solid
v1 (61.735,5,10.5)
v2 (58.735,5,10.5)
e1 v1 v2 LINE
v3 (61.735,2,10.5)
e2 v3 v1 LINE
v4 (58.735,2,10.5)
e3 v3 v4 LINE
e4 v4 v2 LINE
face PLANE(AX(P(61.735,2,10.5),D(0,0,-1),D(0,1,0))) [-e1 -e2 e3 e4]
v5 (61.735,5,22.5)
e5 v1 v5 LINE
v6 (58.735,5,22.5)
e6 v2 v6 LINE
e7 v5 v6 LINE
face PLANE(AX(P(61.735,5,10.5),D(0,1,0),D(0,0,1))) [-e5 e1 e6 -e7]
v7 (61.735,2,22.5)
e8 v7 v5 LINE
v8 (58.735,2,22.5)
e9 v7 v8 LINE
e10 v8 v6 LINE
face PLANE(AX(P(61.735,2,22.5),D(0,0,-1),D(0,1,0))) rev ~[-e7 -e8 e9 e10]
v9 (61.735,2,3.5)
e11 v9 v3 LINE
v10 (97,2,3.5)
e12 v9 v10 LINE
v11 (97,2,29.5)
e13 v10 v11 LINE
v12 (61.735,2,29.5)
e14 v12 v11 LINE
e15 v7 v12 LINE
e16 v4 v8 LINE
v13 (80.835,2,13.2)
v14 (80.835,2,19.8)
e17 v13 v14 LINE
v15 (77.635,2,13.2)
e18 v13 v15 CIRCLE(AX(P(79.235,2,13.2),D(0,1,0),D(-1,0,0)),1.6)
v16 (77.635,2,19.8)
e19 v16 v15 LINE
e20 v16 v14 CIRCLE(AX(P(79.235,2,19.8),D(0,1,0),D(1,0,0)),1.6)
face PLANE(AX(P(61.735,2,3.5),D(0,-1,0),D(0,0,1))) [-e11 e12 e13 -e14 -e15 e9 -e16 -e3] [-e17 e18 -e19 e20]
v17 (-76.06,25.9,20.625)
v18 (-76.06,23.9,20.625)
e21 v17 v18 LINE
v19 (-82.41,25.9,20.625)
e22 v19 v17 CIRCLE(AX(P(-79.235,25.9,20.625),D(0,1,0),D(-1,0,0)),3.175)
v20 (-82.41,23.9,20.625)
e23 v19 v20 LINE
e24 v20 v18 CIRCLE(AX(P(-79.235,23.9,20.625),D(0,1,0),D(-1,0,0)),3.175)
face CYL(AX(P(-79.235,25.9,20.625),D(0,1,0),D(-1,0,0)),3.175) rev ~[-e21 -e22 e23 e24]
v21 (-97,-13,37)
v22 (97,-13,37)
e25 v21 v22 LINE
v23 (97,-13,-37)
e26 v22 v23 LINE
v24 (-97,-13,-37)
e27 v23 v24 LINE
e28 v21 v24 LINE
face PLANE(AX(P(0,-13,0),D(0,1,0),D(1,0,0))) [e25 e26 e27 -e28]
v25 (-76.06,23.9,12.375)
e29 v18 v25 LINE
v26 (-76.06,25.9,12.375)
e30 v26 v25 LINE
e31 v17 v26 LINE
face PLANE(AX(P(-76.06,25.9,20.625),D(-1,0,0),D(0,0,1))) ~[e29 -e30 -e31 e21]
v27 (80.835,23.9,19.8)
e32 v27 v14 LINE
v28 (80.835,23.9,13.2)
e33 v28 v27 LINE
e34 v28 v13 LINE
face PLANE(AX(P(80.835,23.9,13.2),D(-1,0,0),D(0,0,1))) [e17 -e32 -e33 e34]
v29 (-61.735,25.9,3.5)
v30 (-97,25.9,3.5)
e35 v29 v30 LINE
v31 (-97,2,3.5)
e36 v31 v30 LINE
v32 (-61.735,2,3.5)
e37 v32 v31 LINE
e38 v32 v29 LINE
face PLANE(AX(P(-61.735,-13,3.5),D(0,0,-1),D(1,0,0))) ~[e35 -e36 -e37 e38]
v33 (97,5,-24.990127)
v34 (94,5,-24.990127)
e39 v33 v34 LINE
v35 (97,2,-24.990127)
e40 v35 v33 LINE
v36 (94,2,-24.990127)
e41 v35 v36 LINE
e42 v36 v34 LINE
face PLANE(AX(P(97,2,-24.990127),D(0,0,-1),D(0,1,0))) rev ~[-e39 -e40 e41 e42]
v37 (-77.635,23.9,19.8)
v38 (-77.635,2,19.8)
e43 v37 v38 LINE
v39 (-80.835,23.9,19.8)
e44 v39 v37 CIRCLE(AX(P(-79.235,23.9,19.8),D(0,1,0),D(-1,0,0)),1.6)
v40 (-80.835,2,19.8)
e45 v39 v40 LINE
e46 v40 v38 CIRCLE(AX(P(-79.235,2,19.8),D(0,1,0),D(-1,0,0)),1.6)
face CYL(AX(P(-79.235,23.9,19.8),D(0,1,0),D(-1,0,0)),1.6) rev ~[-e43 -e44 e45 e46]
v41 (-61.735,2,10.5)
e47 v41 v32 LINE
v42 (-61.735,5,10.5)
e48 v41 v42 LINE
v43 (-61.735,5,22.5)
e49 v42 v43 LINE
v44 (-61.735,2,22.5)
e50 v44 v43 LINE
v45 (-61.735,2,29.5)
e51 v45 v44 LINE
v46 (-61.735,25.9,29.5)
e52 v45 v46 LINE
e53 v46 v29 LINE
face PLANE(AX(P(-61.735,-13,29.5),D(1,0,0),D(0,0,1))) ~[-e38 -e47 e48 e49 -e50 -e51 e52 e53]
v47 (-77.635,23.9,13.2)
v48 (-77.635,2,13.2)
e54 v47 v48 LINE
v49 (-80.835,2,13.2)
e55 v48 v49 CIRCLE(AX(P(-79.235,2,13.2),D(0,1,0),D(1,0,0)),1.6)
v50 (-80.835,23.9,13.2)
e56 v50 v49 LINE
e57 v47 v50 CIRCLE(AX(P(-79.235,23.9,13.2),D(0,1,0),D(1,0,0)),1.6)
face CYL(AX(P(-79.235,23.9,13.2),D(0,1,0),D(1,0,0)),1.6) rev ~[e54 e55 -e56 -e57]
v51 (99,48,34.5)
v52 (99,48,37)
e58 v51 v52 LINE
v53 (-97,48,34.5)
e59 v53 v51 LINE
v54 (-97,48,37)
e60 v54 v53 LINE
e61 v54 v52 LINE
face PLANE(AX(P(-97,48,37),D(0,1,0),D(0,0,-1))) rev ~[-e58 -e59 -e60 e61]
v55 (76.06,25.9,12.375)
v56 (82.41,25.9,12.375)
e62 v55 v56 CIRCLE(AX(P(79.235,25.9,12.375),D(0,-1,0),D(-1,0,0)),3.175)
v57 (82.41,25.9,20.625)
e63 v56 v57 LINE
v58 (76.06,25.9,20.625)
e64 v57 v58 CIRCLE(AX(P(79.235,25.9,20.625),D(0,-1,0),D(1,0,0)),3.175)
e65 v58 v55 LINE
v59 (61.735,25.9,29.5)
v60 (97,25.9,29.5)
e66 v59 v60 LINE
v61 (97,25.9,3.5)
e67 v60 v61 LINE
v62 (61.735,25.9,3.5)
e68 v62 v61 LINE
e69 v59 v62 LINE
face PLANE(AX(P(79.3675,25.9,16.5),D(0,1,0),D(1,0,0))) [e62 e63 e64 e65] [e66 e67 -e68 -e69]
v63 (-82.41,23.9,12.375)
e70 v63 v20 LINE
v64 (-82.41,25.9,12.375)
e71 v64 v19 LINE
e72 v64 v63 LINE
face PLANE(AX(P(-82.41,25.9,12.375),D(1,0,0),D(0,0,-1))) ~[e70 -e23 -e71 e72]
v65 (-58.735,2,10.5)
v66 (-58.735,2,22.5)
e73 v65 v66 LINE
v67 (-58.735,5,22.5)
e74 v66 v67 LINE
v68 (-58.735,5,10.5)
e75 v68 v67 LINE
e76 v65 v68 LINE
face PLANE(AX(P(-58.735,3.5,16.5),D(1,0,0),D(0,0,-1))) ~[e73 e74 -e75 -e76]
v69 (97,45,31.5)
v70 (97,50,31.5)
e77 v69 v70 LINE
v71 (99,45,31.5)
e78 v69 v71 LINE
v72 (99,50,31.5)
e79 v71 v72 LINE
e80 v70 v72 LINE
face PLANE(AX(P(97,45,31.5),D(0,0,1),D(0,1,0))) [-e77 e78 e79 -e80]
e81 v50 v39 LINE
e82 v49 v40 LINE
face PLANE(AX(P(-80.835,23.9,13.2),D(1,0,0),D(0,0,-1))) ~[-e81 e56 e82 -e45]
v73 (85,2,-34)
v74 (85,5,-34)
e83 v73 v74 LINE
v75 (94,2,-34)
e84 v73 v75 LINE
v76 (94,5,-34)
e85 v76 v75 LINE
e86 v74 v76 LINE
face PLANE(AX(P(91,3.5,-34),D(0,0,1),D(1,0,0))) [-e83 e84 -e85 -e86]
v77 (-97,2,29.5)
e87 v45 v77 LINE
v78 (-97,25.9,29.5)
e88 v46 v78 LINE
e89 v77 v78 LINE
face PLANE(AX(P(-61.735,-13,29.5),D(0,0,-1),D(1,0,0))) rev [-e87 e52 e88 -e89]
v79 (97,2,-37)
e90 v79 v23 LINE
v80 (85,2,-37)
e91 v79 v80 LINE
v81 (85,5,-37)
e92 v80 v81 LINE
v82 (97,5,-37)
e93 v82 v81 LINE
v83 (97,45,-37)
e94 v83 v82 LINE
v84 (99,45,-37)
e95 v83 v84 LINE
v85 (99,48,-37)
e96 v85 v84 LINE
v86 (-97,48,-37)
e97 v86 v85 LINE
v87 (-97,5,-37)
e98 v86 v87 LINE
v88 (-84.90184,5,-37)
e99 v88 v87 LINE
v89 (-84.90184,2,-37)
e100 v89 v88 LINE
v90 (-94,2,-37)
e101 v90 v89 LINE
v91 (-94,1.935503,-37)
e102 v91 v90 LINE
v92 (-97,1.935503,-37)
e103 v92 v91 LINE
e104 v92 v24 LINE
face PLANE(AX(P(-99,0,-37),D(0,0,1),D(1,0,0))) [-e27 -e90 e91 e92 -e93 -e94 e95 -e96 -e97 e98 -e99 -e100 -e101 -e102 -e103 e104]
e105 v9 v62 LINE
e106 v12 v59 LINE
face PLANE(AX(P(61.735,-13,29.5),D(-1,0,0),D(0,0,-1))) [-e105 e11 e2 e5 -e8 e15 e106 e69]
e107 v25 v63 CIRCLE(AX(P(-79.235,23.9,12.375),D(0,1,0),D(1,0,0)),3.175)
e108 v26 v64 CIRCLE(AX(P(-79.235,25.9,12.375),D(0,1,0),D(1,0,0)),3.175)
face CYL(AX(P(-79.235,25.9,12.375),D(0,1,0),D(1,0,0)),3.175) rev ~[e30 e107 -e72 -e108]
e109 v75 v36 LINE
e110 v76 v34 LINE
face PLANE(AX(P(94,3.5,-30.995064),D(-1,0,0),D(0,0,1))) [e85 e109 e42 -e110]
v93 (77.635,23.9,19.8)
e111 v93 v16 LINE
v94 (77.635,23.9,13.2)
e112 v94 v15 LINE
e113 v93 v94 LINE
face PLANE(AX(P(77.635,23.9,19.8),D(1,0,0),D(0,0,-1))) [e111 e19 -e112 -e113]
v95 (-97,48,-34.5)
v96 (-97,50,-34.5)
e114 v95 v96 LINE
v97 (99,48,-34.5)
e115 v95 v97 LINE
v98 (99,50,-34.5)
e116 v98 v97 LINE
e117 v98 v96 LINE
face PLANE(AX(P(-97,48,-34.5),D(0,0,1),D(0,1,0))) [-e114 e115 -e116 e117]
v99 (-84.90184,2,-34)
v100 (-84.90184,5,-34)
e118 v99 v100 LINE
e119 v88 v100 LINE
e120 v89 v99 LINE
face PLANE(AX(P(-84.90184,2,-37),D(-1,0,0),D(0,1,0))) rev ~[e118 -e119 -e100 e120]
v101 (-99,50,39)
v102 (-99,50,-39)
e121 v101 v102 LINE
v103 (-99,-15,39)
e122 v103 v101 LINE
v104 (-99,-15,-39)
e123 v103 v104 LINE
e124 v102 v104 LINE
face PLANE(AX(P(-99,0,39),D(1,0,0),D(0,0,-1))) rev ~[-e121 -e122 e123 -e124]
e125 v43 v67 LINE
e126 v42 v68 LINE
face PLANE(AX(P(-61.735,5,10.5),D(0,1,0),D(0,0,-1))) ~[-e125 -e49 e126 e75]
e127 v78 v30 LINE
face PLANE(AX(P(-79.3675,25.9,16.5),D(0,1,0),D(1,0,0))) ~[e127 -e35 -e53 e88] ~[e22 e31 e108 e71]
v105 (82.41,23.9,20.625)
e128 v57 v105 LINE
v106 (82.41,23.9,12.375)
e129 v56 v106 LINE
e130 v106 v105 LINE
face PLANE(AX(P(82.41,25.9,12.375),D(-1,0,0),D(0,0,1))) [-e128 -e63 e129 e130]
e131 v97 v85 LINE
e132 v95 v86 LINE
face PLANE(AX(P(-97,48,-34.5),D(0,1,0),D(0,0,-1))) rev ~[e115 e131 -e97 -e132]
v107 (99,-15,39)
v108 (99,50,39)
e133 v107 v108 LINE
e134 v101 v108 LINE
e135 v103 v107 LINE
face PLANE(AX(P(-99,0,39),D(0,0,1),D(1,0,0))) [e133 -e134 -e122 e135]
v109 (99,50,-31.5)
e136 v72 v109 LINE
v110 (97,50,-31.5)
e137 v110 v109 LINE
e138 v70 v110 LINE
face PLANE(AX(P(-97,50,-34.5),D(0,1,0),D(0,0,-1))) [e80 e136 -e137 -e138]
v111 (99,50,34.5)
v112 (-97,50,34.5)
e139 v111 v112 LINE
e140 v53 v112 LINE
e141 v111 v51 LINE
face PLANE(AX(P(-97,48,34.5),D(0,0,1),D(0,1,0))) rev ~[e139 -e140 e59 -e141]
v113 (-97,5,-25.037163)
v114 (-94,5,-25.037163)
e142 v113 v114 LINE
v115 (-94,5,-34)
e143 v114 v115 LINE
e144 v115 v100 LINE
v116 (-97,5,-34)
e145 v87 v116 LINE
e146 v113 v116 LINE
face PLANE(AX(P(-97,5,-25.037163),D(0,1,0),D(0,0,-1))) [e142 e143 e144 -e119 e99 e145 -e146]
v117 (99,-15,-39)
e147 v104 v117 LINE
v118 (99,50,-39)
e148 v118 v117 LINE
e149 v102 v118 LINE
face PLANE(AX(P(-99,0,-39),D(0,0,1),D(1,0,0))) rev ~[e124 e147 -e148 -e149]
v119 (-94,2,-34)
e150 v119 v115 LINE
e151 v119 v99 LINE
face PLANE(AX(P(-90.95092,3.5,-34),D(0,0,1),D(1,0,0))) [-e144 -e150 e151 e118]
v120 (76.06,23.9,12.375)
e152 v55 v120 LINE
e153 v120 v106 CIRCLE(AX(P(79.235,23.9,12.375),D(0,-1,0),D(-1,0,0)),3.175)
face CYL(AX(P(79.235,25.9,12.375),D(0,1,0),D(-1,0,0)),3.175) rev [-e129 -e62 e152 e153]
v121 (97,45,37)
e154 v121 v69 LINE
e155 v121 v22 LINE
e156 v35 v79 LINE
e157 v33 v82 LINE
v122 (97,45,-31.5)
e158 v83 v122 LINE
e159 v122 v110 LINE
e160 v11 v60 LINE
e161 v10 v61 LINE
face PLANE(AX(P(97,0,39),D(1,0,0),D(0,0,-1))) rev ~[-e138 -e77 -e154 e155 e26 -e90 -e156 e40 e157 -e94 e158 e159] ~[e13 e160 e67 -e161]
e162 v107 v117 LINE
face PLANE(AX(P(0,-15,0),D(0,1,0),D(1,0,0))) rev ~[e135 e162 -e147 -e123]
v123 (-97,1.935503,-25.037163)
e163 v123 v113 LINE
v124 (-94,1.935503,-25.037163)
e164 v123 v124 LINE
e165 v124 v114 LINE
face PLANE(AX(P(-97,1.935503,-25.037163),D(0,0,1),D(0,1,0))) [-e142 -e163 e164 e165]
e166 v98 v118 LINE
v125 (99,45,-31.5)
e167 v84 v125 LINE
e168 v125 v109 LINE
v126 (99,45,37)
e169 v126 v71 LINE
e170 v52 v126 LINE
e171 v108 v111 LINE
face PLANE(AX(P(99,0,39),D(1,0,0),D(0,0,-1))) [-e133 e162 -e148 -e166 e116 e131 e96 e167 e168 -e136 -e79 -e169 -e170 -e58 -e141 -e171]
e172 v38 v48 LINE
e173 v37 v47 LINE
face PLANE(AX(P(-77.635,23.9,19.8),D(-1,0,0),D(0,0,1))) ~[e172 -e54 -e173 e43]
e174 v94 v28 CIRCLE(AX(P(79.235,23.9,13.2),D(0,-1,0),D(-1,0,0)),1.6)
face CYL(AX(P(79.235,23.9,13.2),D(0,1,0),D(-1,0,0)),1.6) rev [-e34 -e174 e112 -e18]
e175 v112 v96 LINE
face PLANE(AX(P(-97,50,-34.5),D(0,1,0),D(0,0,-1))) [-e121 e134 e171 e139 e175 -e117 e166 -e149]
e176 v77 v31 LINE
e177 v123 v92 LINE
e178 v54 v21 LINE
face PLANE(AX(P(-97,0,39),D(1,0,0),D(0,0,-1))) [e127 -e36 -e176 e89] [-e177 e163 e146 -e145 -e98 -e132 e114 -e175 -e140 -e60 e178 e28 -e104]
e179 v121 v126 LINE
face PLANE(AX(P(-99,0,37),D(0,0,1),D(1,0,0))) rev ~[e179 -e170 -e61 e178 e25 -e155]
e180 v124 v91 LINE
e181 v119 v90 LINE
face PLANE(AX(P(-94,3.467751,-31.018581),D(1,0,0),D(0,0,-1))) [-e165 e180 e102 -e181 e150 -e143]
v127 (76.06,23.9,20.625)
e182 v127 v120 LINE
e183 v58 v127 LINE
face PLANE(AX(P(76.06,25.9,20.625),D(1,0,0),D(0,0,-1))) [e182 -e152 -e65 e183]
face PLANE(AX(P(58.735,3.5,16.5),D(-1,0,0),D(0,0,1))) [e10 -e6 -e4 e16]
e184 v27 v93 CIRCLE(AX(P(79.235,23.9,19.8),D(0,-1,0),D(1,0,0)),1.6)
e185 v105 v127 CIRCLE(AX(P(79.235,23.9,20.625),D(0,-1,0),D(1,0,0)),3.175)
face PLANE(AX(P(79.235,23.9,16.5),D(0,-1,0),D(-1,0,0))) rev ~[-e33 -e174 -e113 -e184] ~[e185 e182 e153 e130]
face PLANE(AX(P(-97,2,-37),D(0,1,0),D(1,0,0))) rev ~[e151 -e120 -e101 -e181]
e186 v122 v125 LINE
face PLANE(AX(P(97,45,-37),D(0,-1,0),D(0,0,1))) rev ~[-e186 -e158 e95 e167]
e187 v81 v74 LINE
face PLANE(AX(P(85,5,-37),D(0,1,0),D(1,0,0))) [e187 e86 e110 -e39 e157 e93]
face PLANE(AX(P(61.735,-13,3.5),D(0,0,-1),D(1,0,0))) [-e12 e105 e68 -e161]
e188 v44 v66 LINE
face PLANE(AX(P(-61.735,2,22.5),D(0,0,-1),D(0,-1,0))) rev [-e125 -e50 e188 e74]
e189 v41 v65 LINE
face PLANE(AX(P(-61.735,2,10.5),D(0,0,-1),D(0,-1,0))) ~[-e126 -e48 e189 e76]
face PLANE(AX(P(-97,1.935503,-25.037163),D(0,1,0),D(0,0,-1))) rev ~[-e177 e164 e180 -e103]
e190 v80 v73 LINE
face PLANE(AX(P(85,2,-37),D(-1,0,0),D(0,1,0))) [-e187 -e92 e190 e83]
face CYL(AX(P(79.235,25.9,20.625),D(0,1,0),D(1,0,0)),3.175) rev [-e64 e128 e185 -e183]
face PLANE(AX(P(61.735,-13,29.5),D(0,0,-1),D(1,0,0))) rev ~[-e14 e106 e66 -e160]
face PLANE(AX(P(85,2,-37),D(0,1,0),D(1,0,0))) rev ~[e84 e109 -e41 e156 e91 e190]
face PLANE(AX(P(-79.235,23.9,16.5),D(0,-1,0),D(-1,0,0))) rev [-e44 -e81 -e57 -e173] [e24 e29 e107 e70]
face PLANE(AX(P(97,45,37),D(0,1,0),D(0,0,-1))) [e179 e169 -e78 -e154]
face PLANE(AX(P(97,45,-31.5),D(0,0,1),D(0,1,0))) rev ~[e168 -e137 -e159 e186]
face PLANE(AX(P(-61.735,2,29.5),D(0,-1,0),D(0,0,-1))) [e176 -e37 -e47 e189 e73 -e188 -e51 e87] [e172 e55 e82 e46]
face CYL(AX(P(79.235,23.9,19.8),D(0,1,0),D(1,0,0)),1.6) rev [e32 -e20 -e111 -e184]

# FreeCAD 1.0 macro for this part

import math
import FreeCAD as App
import Part
import Sketcher
Q = App.Units.Quantity


def faces_at(feature, points):
    """Names of the faces that lie closest to the given points."""
    faces = feature.Shape.Faces
    near = lambda p: min(range(len(faces)), key=lambda i: faces[i].distToShape(Part.Vertex(*p))[0])
    return sorted({f"Face{near(p) + 1}" for p in points})

doc = App.newDocument("Part")
body = doc.addObject("PartDesign::Body", "Body")

# Sketch on XZ plane
sketch1 = body.newObject("Sketcher::SketchObject", "Sketch")
sketch1.AttachmentSupport = (doc.getObject("XZ_Plane"), [""])
sketch1.MapMode = "FlatFace"
sketch1.addGeometry([
    Part.LineSegment(App.Vector(-99, -39, 0), App.Vector(-99, 39, 0)),
    Part.LineSegment(App.Vector(-99, 39, 0), App.Vector(99, 39, 0)),
    Part.LineSegment(App.Vector(99, 39, 0), App.Vector(99, -39, 0)),
    Part.LineSegment(App.Vector(99, -39, 0), App.Vector(-99, -39, 0)),
], False)
sketch1.addConstraint([
    Sketcher.Constraint("Coincident", 0, 2, 1, 1),
    Sketcher.Constraint("Coincident", 1, 2, 2, 1),
    Sketcher.Constraint("Coincident", 2, 2, 3, 1),
    Sketcher.Constraint("Coincident", 3, 2, 0, 1),
    Sketcher.Constraint("Vertical", 0),
    Sketcher.Constraint("Horizontal", 1),
    Sketcher.Constraint("Vertical", 2),
    Sketcher.Constraint("Horizontal", 3),
    Sketcher.Constraint("Symmetric", 0, 2, 2, 2, -1, 1),
    Sketcher.Constraint("DistanceX", 1, 1, 1, 2, Q("198 mm")),
    Sketcher.Constraint("DistanceY", 0, 1, 0, 2, Q("78 mm")),
])
pad1 = body.newObject("PartDesign::Pad", "Pad")
pad1.Profile = sketch1
pad1.Type = "TwoLengths"
pad1.Length = 50
pad1.Length2 = 15
pad1.Reversed = True
doc.recompute()

thickness = body.newObject("PartDesign::Thickness", "Thickness")
thickness.Base = (pad1, faces_at(pad1, [(0, 50, 0)]))
thickness.Value = 2
thickness.Reversed = True
thickness.Join = "Intersection"

# Sketch on YZ plane
sketch2 = body.newObject("Sketcher::SketchObject", "Sketch001")
sketch2.AttachmentSupport = (doc.getObject("YZ_Plane"), [""])
sketch2.MapMode = "FlatFace"
sketch2.AttachmentOffset = App.Placement(App.Vector(0, 0, -97), App.Rotation())
sketch2.addGeometry([
    Part.LineSegment(App.Vector(50, 37, 0), App.Vector(48, 37, 0)),
    Part.LineSegment(App.Vector(48, 37, 0), App.Vector(48, 34.5, 0)),
    Part.LineSegment(App.Vector(48, 34.5, 0), App.Vector(50, 34.5, 0)),
    Part.LineSegment(App.Vector(50, 34.5, 0), App.Vector(50, 37, 0)),
], False)
sketch2.addConstraint([
    Sketcher.Constraint("Coincident", 0, 2, 1, 1),
    Sketcher.Constraint("Coincident", 1, 2, 2, 1),
    Sketcher.Constraint("Coincident", 2, 2, 3, 1),
    Sketcher.Constraint("Coincident", 3, 2, 0, 1),
    Sketcher.Constraint("Horizontal", 0),
    Sketcher.Constraint("Vertical", 1),
    Sketcher.Constraint("Horizontal", 2),
    Sketcher.Constraint("Vertical", 3),
    Sketcher.Constraint("DistanceX", 0, 2, 0, 1, Q("2 mm")),
    Sketcher.Constraint("DistanceY", 1, 2, 1, 1, Q("2.5 mm")),
    Sketcher.Constraint("DistanceX", -1, 1, 0, 2, Q("48 mm")),
    Sketcher.Constraint("DistanceY", -1, 1, 0, 2, Q("37 mm")),
])
pad2 = body.newObject("PartDesign::Pad", "Pad001")
pad2.Profile = sketch2
pad2.Type = "UpToFirst"

# Sketch on YZ plane
sketch3 = body.newObject("Sketcher::SketchObject", "Sketch002")
sketch3.AttachmentSupport = (doc.getObject("YZ_Plane"), [""])
sketch3.MapMode = "FlatFace"
sketch3.AttachmentOffset = App.Placement(App.Vector(0, 0, -97), App.Rotation())
sketch3.addGeometry([
    Part.LineSegment(App.Vector(50, -34.5, 0), App.Vector(48, -34.5, 0)),
    Part.LineSegment(App.Vector(48, -34.5, 0), App.Vector(48, -37, 0)),
    Part.LineSegment(App.Vector(48, -37, 0), App.Vector(50, -37, 0)),
    Part.LineSegment(App.Vector(50, -37, 0), App.Vector(50, -34.5, 0)),
], False)
sketch3.addConstraint([
    Sketcher.Constraint("Coincident", 0, 2, 1, 1),
    Sketcher.Constraint("Coincident", 1, 2, 2, 1),
    Sketcher.Constraint("Coincident", 2, 2, 3, 1),
    Sketcher.Constraint("Coincident", 3, 2, 0, 1),
    Sketcher.Constraint("Horizontal", 0),
    Sketcher.Constraint("Vertical", 1),
    Sketcher.Constraint("Horizontal", 2),
    Sketcher.Constraint("Vertical", 3),
    Sketcher.Constraint("DistanceX", 0, 2, 0, 1, Q("2 mm")),
    Sketcher.Constraint("DistanceY", 1, 2, 1, 1, Q("2.5 mm")),
    Sketcher.Constraint("DistanceX", -1, 1, 0, 2, Q("48 mm")),
    Sketcher.Constraint("DistanceY", 1, 2, -1, 1, Q("37 mm")),
])
pad3 = body.newObject("PartDesign::Pad", "Pad002")
pad3.Profile = sketch3
pad3.Type = "UpToFirst"

# Sketch on YZ plane
sketch4 = body.newObject("Sketcher::SketchObject", "Sketch003")
sketch4.AttachmentSupport = (doc.getObject("YZ_Plane"), [""])
sketch4.MapMode = "FlatFace"
sketch4.AttachmentOffset = App.Placement(App.Vector(0, 0, 97), App.Rotation())
sketch4.addGeometry([
    Part.LineSegment(App.Vector(48, -37, 0), App.Vector(45, -37, 0)),  # 0
    Part.LineSegment(App.Vector(45, -37, 0), App.Vector(45, -31.5, 0)),  # 1
    Part.LineSegment(App.Vector(45, -31.5, 0), App.Vector(50, -31.5, 0)),  # 2
    Part.LineSegment(App.Vector(50, -31.5, 0), App.Vector(50, -34.5, 0)),  # 3
    Part.LineSegment(App.Vector(50, -34.5, 0), App.Vector(48, -34.5, 0)),  # 4
    Part.LineSegment(App.Vector(48, -34.5, 0), App.Vector(48, -37, 0)),  # 5
], False)
sketch4.addConstraint([
    Sketcher.Constraint("Coincident", 0, 2, 1, 1),
    Sketcher.Constraint("Coincident", 1, 2, 2, 1),
    Sketcher.Constraint("Coincident", 2, 2, 3, 1),
    Sketcher.Constraint("Coincident", 3, 2, 4, 1),
    Sketcher.Constraint("Coincident", 4, 2, 5, 1),
    Sketcher.Constraint("Coincident", 5, 2, 0, 1),
    Sketcher.Constraint("Horizontal", 0),
    Sketcher.Constraint("Vertical", 1),
    Sketcher.Constraint("Horizontal", 2),
    Sketcher.Constraint("Vertical", 3),
    Sketcher.Constraint("Horizontal", 4),
    Sketcher.Constraint("Vertical", 5),
    Sketcher.Constraint("Equal", 0, 3),
    Sketcher.Constraint("DistanceX", 0, 2, 0, 1, Q("3 mm")),
    Sketcher.Constraint("DistanceX", 2, 1, 2, 2, Q("5 mm")),
    Sketcher.Constraint("DistanceY", 1, 1, 1, 2, Q("5.5 mm")),
    Sketcher.Constraint("DistanceX", -1, 1, 0, 2, Q("45 mm")),
    Sketcher.Constraint("DistanceY", 0, 2, -1, 1, Q("37 mm")),
])
pocket1 = body.newObject("PartDesign::Pocket", "Pocket")
pocket1.Profile = sketch4
pocket1.Type = "UpToFirst"
pocket1.Reversed = True

# Sketch on YZ plane
sketch5 = body.newObject("Sketcher::SketchObject", "Sketch004")
sketch5.AttachmentSupport = (doc.getObject("YZ_Plane"), [""])
sketch5.MapMode = "FlatFace"
sketch5.AttachmentOffset = App.Placement(App.Vector(0, 0, 97), App.Rotation())
sketch5.addGeometry([
    Part.LineSegment(App.Vector(48, 37, 0), App.Vector(48, 34.5, 0)),  # 0
    Part.LineSegment(App.Vector(48, 34.5, 0), App.Vector(50, 34.5, 0)),  # 1
    Part.LineSegment(App.Vector(50, 34.5, 0), App.Vector(50, 31.5, 0)),  # 2
    Part.LineSegment(App.Vector(50, 31.5, 0), App.Vector(45, 31.5, 0)),  # 3
    Part.LineSegment(App.Vector(45, 31.5, 0), App.Vector(45, 37, 0)),  # 4
    Part.LineSegment(App.Vector(45, 37, 0), App.Vector(48, 37, 0)),  # 5
], False)
sketch5.addConstraint([
    Sketcher.Constraint("Coincident", 0, 2, 1, 1),
    Sketcher.Constraint("Coincident", 1, 2, 2, 1),
    Sketcher.Constraint("Coincident", 2, 2, 3, 1),
    Sketcher.Constraint("Coincident", 3, 2, 4, 1),
    Sketcher.Constraint("Coincident", 4, 2, 5, 1),
    Sketcher.Constraint("Coincident", 5, 2, 0, 1),
    Sketcher.Constraint("Vertical", 0),
    Sketcher.Constraint("Horizontal", 1),
    Sketcher.Constraint("Vertical", 2),
    Sketcher.Constraint("Horizontal", 3),
    Sketcher.Constraint("Vertical", 4),
    Sketcher.Constraint("Horizontal", 5),
    Sketcher.Constraint("Equal", 5, 2),
    Sketcher.Constraint("DistanceX", 1, 1, 1, 2, Q("2 mm")),
    Sketcher.Constraint("DistanceX", 3, 2, 3, 1, Q("5 mm")),
    Sketcher.Constraint("DistanceY", 0, 2, 0, 1, Q("2.5 mm")),
    Sketcher.Constraint("DistanceX", -1, 1, 0, 2, Q("48 mm")),
    Sketcher.Constraint("DistanceY", -1, 1, 4, 2, Q("37 mm")),
])
pocket2 = body.newObject("PartDesign::Pocket", "Pocket001")
pocket2.Profile = sketch5
pocket2.Type = "UpToFirst"
pocket2.Reversed = True

# Sketch on XZ plane
sketch6 = body.newObject("Sketcher::SketchObject", "Sketch005")
sketch6.AttachmentSupport = (doc.getObject("XZ_Plane"), [""])
sketch6.MapMode = "FlatFace"
sketch6.AttachmentOffset = App.Placement(App.Vector(0, 0, 13), App.Rotation())
sketch6.addGeometry([
    Part.LineSegment(App.Vector(61.735, 3.5, 0), App.Vector(61.735, 29.5, 0)),
    Part.LineSegment(App.Vector(61.735, 29.5, 0), App.Vector(97, 29.5, 0)),
    Part.LineSegment(App.Vector(97, 29.5, 0), App.Vector(97, 3.5, 0)),
    Part.LineSegment(App.Vector(97, 3.5, 0), App.Vector(61.735, 3.5, 0)),
], False)
sketch6.addConstraint([
    Sketcher.Constraint("Coincident", 0, 2, 1, 1),
    Sketcher.Constraint("Coincident", 1, 2, 2, 1),
    Sketcher.Constraint("Coincident", 2, 2, 3, 1),
    Sketcher.Constraint("Coincident", 3, 2, 0, 1),
    Sketcher.Constraint("Vertical", 0),
    Sketcher.Constraint("Horizontal", 1),
    Sketcher.Constraint("Vertical", 2),
    Sketcher.Constraint("Horizontal", 3),
    Sketcher.Constraint("DistanceY", 0, 1, 0, 2, Q("26 mm")),
    Sketcher.Constraint("DistanceX", -1, 1, 1, 2, Q("97 mm")),
    Sketcher.Constraint("DistanceY", -1, 1, 0, 2, Q("29.5 mm")),
    Sketcher.Constraint("DistanceX", 1, 1, 1, 2, Q("35.265 mm")),
])
pad4 = body.newObject("PartDesign::Pad", "Pad003")
pad4.Profile = sketch6
pad4.Length = 38.9
pad4.Reversed = True
doc.recompute()

mirrored = body.newObject("PartDesign::Mirrored", "Mirrored")
mirrored.Originals = [pad4]
mirrored.MirrorPlane = (doc.getObject("YZ_Plane"), [""])
body.Tip = mirrored

# Sketch on XZ plane
sketch7 = body.newObject("Sketcher::SketchObject", "Sketch006")
sketch7.AttachmentSupport = (doc.getObject("XZ_Plane"), [""])
sketch7.MapMode = "FlatFace"
sketch7.AttachmentOffset = App.Placement(App.Vector(0, 0, -25.9), App.Rotation())
sketch7.addGeometry([
    Part.LineSegment(App.Vector(82.41, 20.625, 0), App.Vector(82.41, 12.375, 0)),
    Part.ArcOfCircle(Part.Circle(App.Vector(79.235, 12.375, 0), App.Vector(0, 0, 1), 3.175), math.radians(180), math.radians(360)),
    Part.LineSegment(App.Vector(76.06, 12.375, 0), App.Vector(76.06, 20.625, 0)),
    Part.ArcOfCircle(Part.Circle(App.Vector(79.235, 20.625, 0), App.Vector(0, 0, 1), 3.175), math.radians(0), math.radians(180)),
], False)
sketch7.addConstraint([
    Sketcher.Constraint("Tangent", 0, 2, 1, 2),
    Sketcher.Constraint("Tangent", 1, 1, 2, 1),
    Sketcher.Constraint("Tangent", 2, 2, 3, 2),
    Sketcher.Constraint("Tangent", 3, 1, 0, 1),
    Sketcher.Constraint("Vertical", 0),
    Sketcher.Constraint("Vertical", 2),
    Sketcher.Constraint("Radius", 1, Q("3.175 mm")),
    Sketcher.Constraint("DistanceY", 0, 2, 0, 1, Q("8.25 mm")),
    Sketcher.Constraint("DistanceX", -1, 1, 0, 2, Q("82.41 mm")),
    Sketcher.Constraint("DistanceY", -1, 1, 1, 3, Q("12.375 mm")),
])
pocket3 = body.newObject("PartDesign::Pocket", "Pocket002")
pocket3.Profile = sketch7
pocket3.Length = 2
pocket3.Reversed = True
doc.recompute()

mirrored2 = body.newObject("PartDesign::Mirrored", "Mirrored001")
mirrored2.Originals = [pocket3]
mirrored2.MirrorPlane = (doc.getObject("YZ_Plane"), [""])
body.Tip = mirrored2

# Sketch on XZ plane
sketch8 = body.newObject("Sketcher::SketchObject", "Sketch007")
sketch8.AttachmentSupport = (doc.getObject("XZ_Plane"), [""])
sketch8.MapMode = "FlatFace"
sketch8.AttachmentOffset = App.Placement(App.Vector(0, 0, -23.9), App.Rotation())
sketch8.addGeometry([
    Part.LineSegment(App.Vector(80.835, 19.8, 0), App.Vector(80.835, 13.2, 0)),
    Part.ArcOfCircle(Part.Circle(App.Vector(79.235, 13.2, 0), App.Vector(0, 0, 1), 1.6), math.radians(180), math.radians(360)),
    Part.LineSegment(App.Vector(77.635, 13.2, 0), App.Vector(77.635, 19.8, 0)),
    Part.ArcOfCircle(Part.Circle(App.Vector(79.235, 19.8, 0), App.Vector(0, 0, 1), 1.6), math.radians(0), math.radians(180)),
], False)
sketch8.addConstraint([
    Sketcher.Constraint("Tangent", 0, 2, 1, 2),
    Sketcher.Constraint("Tangent", 1, 1, 2, 1),
    Sketcher.Constraint("Tangent", 2, 2, 3, 2),
    Sketcher.Constraint("Tangent", 3, 1, 0, 1),
    Sketcher.Constraint("Vertical", 0),
    Sketcher.Constraint("Vertical", 2),
    Sketcher.Constraint("Radius", 1, Q("1.6 mm")),
    Sketcher.Constraint("DistanceY", 0, 2, 0, 1, Q("6.6 mm")),
    Sketcher.Constraint("DistanceY", -1, 1, 1, 3, Q("13.2 mm")),
    Sketcher.Constraint("DistanceX", -1, 1, 1, 3, Q("79.235 mm")),
])
pocket4 = body.newObject("PartDesign::Pocket", "Pocket003")
pocket4.Profile = sketch8
pocket4.Length = 30
pocket4.Reversed = True
doc.recompute()

mirrored3 = body.newObject("PartDesign::Mirrored", "Mirrored002")
mirrored3.Originals = [pocket4]
mirrored3.MirrorPlane = (doc.getObject("YZ_Plane"), [""])
body.Tip = mirrored3

# Sketch on YZ plane
sketch9 = body.newObject("Sketcher::SketchObject", "Sketch008")
sketch9.AttachmentSupport = (doc.getObject("YZ_Plane"), [""])
sketch9.MapMode = "FlatFace"
sketch9.AttachmentOffset = App.Placement(App.Vector(0, 0, 61.735), App.Rotation())
sketch9.addGeometry([
    Part.LineSegment(App.Vector(2, 3.5, 0), App.Vector(-13, 3.5, 0)),
    Part.LineSegment(App.Vector(-13, 3.5, 0), App.Vector(-13, 29.5, 0)),
    Part.LineSegment(App.Vector(-13, 29.5, 0), App.Vector(2, 29.5, 0)),
    Part.LineSegment(App.Vector(2, 29.5, 0), App.Vector(2, 3.5, 0)),
], False)
sketch9.addConstraint([
    Sketcher.Constraint("Coincident", 0, 2, 1, 1),
    Sketcher.Constraint("Coincident", 1, 2, 2, 1),
    Sketcher.Constraint("Coincident", 2, 2, 3, 1),
    Sketcher.Constraint("Coincident", 3, 2, 0, 1),
    Sketcher.Constraint("Horizontal", 0),
    Sketcher.Constraint("Vertical", 1),
    Sketcher.Constraint("Horizontal", 2),
    Sketcher.Constraint("Vertical", 3),
    Sketcher.Constraint("DistanceX", 0, 2, 0, 1, Q("15 mm")),
    Sketcher.Constraint("DistanceY", 1, 1, 1, 2, Q("26 mm")),
    Sketcher.Constraint("DistanceX", 0, 2, -1, 1, Q("13 mm")),
    Sketcher.Constraint("DistanceY", -1, 1, 0, 2, Q("3.5 mm")),
])
pocket5 = body.newObject("PartDesign::Pocket", "Pocket004")
pocket5.Profile = sketch9
pocket5.Length = 35.265
pocket5.Reversed = True

# Sketch on YZ plane
sketch10 = body.newObject("Sketcher::SketchObject", "Sketch009")
sketch10.AttachmentSupport = (doc.getObject("YZ_Plane"), [""])
sketch10.MapMode = "FlatFace"
sketch10.AttachmentOffset = App.Placement(App.Vector(0, 0, 61.735), App.Rotation())
sketch10.addGeometry([
    Part.LineSegment(App.Vector(5, 10.5, 0), App.Vector(2, 10.5, 0)),
    Part.LineSegment(App.Vector(2, 10.5, 0), App.Vector(2, 22.5, 0)),
    Part.LineSegment(App.Vector(2, 22.5, 0), App.Vector(5, 22.5, 0)),
    Part.LineSegment(App.Vector(5, 22.5, 0), App.Vector(5, 10.5, 0)),
], False)
sketch10.addConstraint([
    Sketcher.Constraint("Coincident", 0, 2, 1, 1),
    Sketcher.Constraint("Coincident", 1, 2, 2, 1),
    Sketcher.Constraint("Coincident", 2, 2, 3, 1),
    Sketcher.Constraint("Coincident", 3, 2, 0, 1),
    Sketcher.Constraint("Horizontal", 0),
    Sketcher.Constraint("Vertical", 1),
    Sketcher.Constraint("Horizontal", 2),
    Sketcher.Constraint("Vertical", 3),
    Sketcher.Constraint("DistanceX", 0, 2, 0, 1, Q("3 mm")),
    Sketcher.Constraint("DistanceY", 1, 1, 1, 2, Q("12 mm")),
    Sketcher.Constraint("DistanceX", -1, 1, 0, 2, Q("2 mm")),
    Sketcher.Constraint("DistanceY", -1, 1, 0, 2, Q("10.5 mm")),
])
pad5 = body.newObject("PartDesign::Pad", "Pad004")
pad5.Profile = sketch10
pad5.Length = 3
pad5.Reversed = True

# Sketch on YZ plane
sketch11 = body.newObject("Sketcher::SketchObject", "Sketch010")
sketch11.AttachmentSupport = (doc.getObject("YZ_Plane"), [""])
sketch11.MapMode = "FlatFace"
sketch11.AttachmentOffset = App.Placement(App.Vector(0, 0, -61.735), App.Rotation())
sketch11.addGeometry([
    Part.LineSegment(App.Vector(2, 29.5, 0), App.Vector(-13, 29.5, 0)),
    Part.LineSegment(App.Vector(-13, 29.5, 0), App.Vector(-13, 3.5, 0)),
    Part.LineSegment(App.Vector(-13, 3.5, 0), App.Vector(2, 3.5, 0)),
    Part.LineSegment(App.Vector(2, 3.5, 0), App.Vector(2, 29.5, 0)),
], False)
sketch11.addConstraint([
    Sketcher.Constraint("Coincident", 0, 2, 1, 1),
    Sketcher.Constraint("Coincident", 1, 2, 2, 1),
    Sketcher.Constraint("Coincident", 2, 2, 3, 1),
    Sketcher.Constraint("Coincident", 3, 2, 0, 1),
    Sketcher.Constraint("Horizontal", 0),
    Sketcher.Constraint("Vertical", 1),
    Sketcher.Constraint("Horizontal", 2),
    Sketcher.Constraint("Vertical", 3),
    Sketcher.Constraint("DistanceX", 0, 2, 0, 1, Q("15 mm")),
    Sketcher.Constraint("DistanceY", 1, 2, 1, 1, Q("26 mm")),
    Sketcher.Constraint("DistanceX", 0, 2, -1, 1, Q("13 mm")),
    Sketcher.Constraint("DistanceY", -1, 1, 0, 2, Q("29.5 mm")),
])
pocket6 = body.newObject("PartDesign::Pocket", "Pocket005")
pocket6.Profile = sketch11
pocket6.Length = 35.265
doc.recompute()

mirrored4 = body.newObject("PartDesign::Mirrored", "Mirrored003")
mirrored4.Originals = [pad5]
mirrored4.MirrorPlane = (doc.getObject("YZ_Plane"), [""])
body.Tip = mirrored4

# Sketch on XY plane
sketch12 = body.newObject("Sketcher::SketchObject", "Sketch011")
sketch12.AttachmentSupport = (doc.getObject("XY_Plane"), [""])
sketch12.MapMode = "FlatFace"
sketch12.AttachmentOffset = App.Placement(App.Vector(0, 0, -37), App.Rotation())
sketch12.addGeometry([
    Part.LineSegment(App.Vector(85, 5, 0), App.Vector(85, 2, 0)),
    Part.LineSegment(App.Vector(85, 2, 0), App.Vector(97, 2, 0)),
    Part.LineSegment(App.Vector(97, 2, 0), App.Vector(97, 5, 0)),
    Part.LineSegment(App.Vector(97, 5, 0), App.Vector(85, 5, 0)),
], False)
sketch12.addConstraint([
    Sketcher.Constraint("Coincident", 0, 2, 1, 1),
    Sketcher.Constraint("Coincident", 1, 2, 2, 1),
    Sketcher.Constraint("Coincident", 2, 2, 3, 1),
    Sketcher.Constraint("Coincident", 3, 2, 0, 1),
    Sketcher.Constraint("Vertical", 0),
    Sketcher.Constraint("Horizontal", 1),
    Sketcher.Constraint("Vertical", 2),
    Sketcher.Constraint("Horizontal", 3),
    Sketcher.Constraint("DistanceX", 1, 1, 1, 2, Q("12 mm")),
    Sketcher.Constraint("DistanceY", 0, 2, 0, 1, Q("3 mm")),
    Sketcher.Constraint("DistanceX", -1, 1, 0, 2, Q("85 mm")),
    Sketcher.Constraint("DistanceY", -1, 1, 0, 2, Q("2 mm")),
])
pad6 = body.newObject("PartDesign::Pad", "Pad005")
pad6.Profile = sketch12
pad6.Length = 3

# Sketch on YZ plane
sketch13 = body.newObject("Sketcher::SketchObject", "Sketch012")
sketch13.AttachmentSupport = (doc.getObject("YZ_Plane"), [""])
sketch13.MapMode = "FlatFace"
sketch13.AttachmentOffset = App.Placement(App.Vector(0, 0, 97), App.Rotation())
sketch13.addGeometry([
    Part.LineSegment(App.Vector(5, -37, 0), App.Vector(2, -37, 0)),
    Part.LineSegment(App.Vector(2, -37, 0), App.Vector(2, -24.990127, 0)),
    Part.LineSegment(App.Vector(2, -24.990127, 0), App.Vector(5, -24.990127, 0)),
    Part.LineSegment(App.Vector(5, -24.990127, 0), App.Vector(5, -37, 0)),
], False)
sketch13.addConstraint([
    Sketcher.Constraint("Coincident", 0, 2, 1, 1),
    Sketcher.Constraint("Coincident", 1, 2, 2, 1),
    Sketcher.Constraint("Coincident", 2, 2, 3, 1),
    Sketcher.Constraint("Coincident", 3, 2, 0, 1),
    Sketcher.Constraint("Horizontal", 0),
    Sketcher.Constraint("Vertical", 1),
    Sketcher.Constraint("Horizontal", 2),
    Sketcher.Constraint("Vertical", 3),
    Sketcher.Constraint("DistanceX", 0, 2, 0, 1, Q("3 mm")),
    Sketcher.Constraint("DistanceX", -1, 1, 0, 2, Q("2 mm")),
    Sketcher.Constraint("DistanceY", 0, 2, -1, 1, Q("37 mm")),
    Sketcher.Constraint("DistanceY", 1, 1, 1, 2, Q("12.009873 mm")),
])
pad7 = body.newObject("PartDesign::Pad", "Pad006")
pad7.Profile = sketch13
pad7.Length = 3
pad7.Reversed = True

# Sketch on XY plane
sketch14 = body.newObject("Sketcher::SketchObject", "Sketch013")
sketch14.AttachmentSupport = (doc.getObject("XY_Plane"), [""])
sketch14.MapMode = "FlatFace"
sketch14.AttachmentOffset = App.Placement(App.Vector(0, 0, -37), App.Rotation())
sketch14.addGeometry([
    Part.LineSegment(App.Vector(-97, 5, 0), App.Vector(-97, 2, 0)),
    Part.LineSegment(App.Vector(-97, 2, 0), App.Vector(-84.90184, 2, 0)),
    Part.LineSegment(App.Vector(-84.90184, 2, 0), App.Vector(-84.90184, 5, 0)),
    Part.LineSegment(App.Vector(-84.90184, 5, 0), App.Vector(-97, 5, 0)),
], False)
sketch14.addConstraint([
    Sketcher.Constraint("Coincident", 0, 2, 1, 1),
    Sketcher.Constraint("Coincident", 1, 2, 2, 1),
    Sketcher.Constraint("Coincident", 2, 2, 3, 1),
    Sketcher.Constraint("Coincident", 3, 2, 0, 1),
    Sketcher.Constraint("Vertical", 0),
    Sketcher.Constraint("Horizontal", 1),
    Sketcher.Constraint("Vertical", 2),
    Sketcher.Constraint("Horizontal", 3),
    Sketcher.Constraint("DistanceY", 0, 2, 0, 1, Q("3 mm")),
    Sketcher.Constraint("DistanceX", 0, 2, -1, 1, Q("97 mm")),
    Sketcher.Constraint("DistanceY", -1, 1, 0, 2, Q("2 mm")),
    Sketcher.Constraint("DistanceX", 1, 1, 1, 2, Q("12.09816 mm")),
])
pad8 = body.newObject("PartDesign::Pad", "Pad007")
pad8.Profile = sketch14
pad8.Length = 3

# Sketch on YZ plane
sketch15 = body.newObject("Sketcher::SketchObject", "Sketch014")
sketch15.AttachmentSupport = (doc.getObject("YZ_Plane"), [""])
sketch15.MapMode = "FlatFace"
sketch15.AttachmentOffset = App.Placement(App.Vector(0, 0, -97), App.Rotation())
sketch15.addGeometry([
    Part.LineSegment(App.Vector(5, -25.037163, 0), App.Vector(1.935503, -25.037163, 0)),
    Part.LineSegment(App.Vector(1.935503, -25.037163, 0), App.Vector(1.935503, -37, 0)),
    Part.LineSegment(App.Vector(1.935503, -37, 0), App.Vector(5, -37, 0)),
    Part.LineSegment(App.Vector(5, -37, 0), App.Vector(5, -25.037163, 0)),
], False)
sketch15.addConstraint([
    Sketcher.Constraint("Coincident", 0, 2, 1, 1),
    Sketcher.Constraint("Coincident", 1, 2, 2, 1),
    Sketcher.Constraint("Coincident", 2, 2, 3, 1),
    Sketcher.Constraint("Coincident", 3, 2, 0, 1),
    Sketcher.Constraint("Horizontal", 0),
    Sketcher.Constraint("Vertical", 1),
    Sketcher.Constraint("Horizontal", 2),
    Sketcher.Constraint("Vertical", 3),
    Sketcher.Constraint("DistanceY", 1, 2, -1, 1, Q("37 mm")),
    Sketcher.Constraint("DistanceX", -1, 1, 2, 2, Q("5 mm")),
    Sketcher.Constraint("DistanceX", 0, 2, 0, 1, Q("3.064497 mm")),
    Sketcher.Constraint("DistanceY", 1, 2, 1, 1, Q("11.962837 mm")),
])
pad9 = body.newObject("PartDesign::Pad", "Pad008")
pad9.Profile = sketch15
pad9.Length = 3

doc.recompute()
